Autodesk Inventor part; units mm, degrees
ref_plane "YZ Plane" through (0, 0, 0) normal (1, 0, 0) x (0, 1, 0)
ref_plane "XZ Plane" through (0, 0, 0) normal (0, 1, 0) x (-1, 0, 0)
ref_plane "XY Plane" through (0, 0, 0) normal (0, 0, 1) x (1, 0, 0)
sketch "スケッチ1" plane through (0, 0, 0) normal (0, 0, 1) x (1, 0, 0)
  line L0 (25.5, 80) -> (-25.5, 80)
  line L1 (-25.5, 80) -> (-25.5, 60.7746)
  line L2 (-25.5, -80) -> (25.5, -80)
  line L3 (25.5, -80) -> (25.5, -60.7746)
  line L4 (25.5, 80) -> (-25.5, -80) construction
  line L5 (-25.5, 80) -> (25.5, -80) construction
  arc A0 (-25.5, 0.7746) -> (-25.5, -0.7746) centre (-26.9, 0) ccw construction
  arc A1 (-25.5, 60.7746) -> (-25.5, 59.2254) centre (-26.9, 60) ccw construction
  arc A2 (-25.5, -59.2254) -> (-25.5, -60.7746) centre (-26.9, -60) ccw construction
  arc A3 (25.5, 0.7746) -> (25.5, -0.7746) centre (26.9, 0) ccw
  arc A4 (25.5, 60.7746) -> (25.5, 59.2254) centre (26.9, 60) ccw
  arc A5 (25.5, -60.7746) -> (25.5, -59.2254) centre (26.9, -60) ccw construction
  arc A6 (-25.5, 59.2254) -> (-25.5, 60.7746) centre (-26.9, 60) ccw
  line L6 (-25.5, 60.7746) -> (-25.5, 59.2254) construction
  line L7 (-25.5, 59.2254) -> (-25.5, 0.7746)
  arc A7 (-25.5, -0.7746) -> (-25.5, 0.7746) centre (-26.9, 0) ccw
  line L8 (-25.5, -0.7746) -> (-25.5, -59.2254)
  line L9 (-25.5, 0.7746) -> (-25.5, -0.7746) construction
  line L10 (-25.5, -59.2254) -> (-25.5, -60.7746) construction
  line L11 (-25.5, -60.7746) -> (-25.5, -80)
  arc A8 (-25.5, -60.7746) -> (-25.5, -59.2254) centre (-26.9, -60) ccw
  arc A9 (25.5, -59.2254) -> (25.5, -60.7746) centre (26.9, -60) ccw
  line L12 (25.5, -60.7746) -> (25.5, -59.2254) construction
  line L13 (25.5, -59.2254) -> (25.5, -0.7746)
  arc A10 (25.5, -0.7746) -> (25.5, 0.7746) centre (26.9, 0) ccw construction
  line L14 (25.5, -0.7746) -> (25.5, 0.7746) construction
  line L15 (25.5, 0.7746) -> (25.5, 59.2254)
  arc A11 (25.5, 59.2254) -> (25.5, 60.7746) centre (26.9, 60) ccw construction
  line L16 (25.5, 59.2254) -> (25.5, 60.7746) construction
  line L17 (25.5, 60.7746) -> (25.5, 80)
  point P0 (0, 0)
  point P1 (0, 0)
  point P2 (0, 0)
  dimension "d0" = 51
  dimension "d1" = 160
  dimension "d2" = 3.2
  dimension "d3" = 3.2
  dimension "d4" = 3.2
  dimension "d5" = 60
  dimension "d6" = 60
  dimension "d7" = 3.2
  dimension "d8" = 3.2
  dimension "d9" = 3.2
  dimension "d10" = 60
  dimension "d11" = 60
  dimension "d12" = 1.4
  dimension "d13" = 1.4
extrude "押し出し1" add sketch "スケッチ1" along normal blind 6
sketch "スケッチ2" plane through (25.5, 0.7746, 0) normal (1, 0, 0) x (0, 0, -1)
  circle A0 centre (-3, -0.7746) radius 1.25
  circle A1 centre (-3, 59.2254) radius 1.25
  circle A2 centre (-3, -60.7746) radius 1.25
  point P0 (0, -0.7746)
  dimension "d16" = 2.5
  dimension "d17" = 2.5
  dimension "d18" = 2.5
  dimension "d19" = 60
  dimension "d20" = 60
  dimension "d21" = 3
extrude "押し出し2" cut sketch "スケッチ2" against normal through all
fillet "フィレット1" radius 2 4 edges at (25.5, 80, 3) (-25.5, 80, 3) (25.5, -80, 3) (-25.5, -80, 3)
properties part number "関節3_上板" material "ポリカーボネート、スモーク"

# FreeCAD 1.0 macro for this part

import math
import FreeCAD as App
import Part
import Sketcher

V = App.Vector


def edges_at(feature, points):
    """Names of the edges that pass closest to the given points."""
    edges = feature.Shape.Edges
    near = lambda p: min(range(len(edges)), key=lambda i: edges[i].distToShape(Part.Vertex(*p))[0])
    return sorted({f"Edge{near(p) + 1}" for p in points})

doc = App.newDocument("Part")
params = doc.addObject("Spreadsheet::Sheet", "Params")
for row, (alias, value) in enumerate([
    ("sketch1_radius", "1.6 mm"),
    ("sketch1_width", "51 mm"),
    ("pad1_length", "6 mm"),
    ("sketch2_diameter", "2.5 mm"),
    ("fillet_radius", "2 mm"),
], start=1):
    params.set(f"A{row}", alias)
    params.set(f"B{row}", "=" + value)
    params.setAlias(f"B{row}", alias)

body = doc.addObject("PartDesign::Body", "Body")

sketch1 = body.newObject("Sketcher::SketchObject", "Sketch")
sketch1.AttachmentSupport = (doc.getObject("XY_Plane"), [""])
sketch1.MapMode = "FlatFace"
sketch1.addGeometry(Part.LineSegment(V(25.5, 60.8, 0), V(25.5, 80, 0)), False)
sketch1.addGeometry(Part.LineSegment(V(25.5, 80, 0), V(-25.5, 80, 0)), False)
sketch1.addGeometry(Part.LineSegment(V(-25.5, 80, 0), V(-25.5, 60.8, 0)), False)
sketch1.addGeometry(Part.ArcOfCircle(Part.Circle(V(-26.9, 60, 0), V(0, 0, 1), 1.6), math.radians(-29), math.radians(29)), False)
sketch1.addGeometry(Part.LineSegment(V(-25.5, 59.2, 0), V(-25.5, 0.8, 0)), False)
sketch1.addGeometry(Part.ArcOfCircle(Part.Circle(V(-26.9, 0, 0), V(0, 0, 1), 1.6), math.radians(-29), math.radians(29)), False)
sketch1.addGeometry(Part.LineSegment(V(-25.5, -0.8, 0), V(-25.5, -59.2, 0)), False)
sketch1.addGeometry(Part.ArcOfCircle(Part.Circle(V(-26.9, -60, 0), V(0, 0, 1), 1.6), math.radians(-29), math.radians(29)), False)
sketch1.addGeometry(Part.LineSegment(V(-25.5, -60.8, 0), V(-25.5, -80, 0)), False)
sketch1.addGeometry(Part.LineSegment(V(-25.5, -80, 0), V(25.5, -80, 0)), False)
sketch1.addGeometry(Part.LineSegment(V(25.5, -80, 0), V(25.5, -60.8, 0)), False)
sketch1.addGeometry(Part.ArcOfCircle(Part.Circle(V(26.9, -60, 0), V(0, 0, 1), 1.6), math.radians(151), math.radians(209)), False)
sketch1.addGeometry(Part.LineSegment(V(25.5, -59.2, 0), V(25.5, -0.8, 0)), False)
sketch1.addGeometry(Part.ArcOfCircle(Part.Circle(V(26.9, 0, 0), V(0, 0, 1), 1.6), math.radians(151), math.radians(209)), False)
sketch1.addGeometry(Part.LineSegment(V(25.5, 0.8, 0), V(25.5, 59.2, 0)), False)
sketch1.addGeometry(Part.ArcOfCircle(Part.Circle(V(26.9, 60, 0), V(0, 0, 1), 1.6), math.radians(151), math.radians(209)), False)
sketch1.addConstraint(Sketcher.Constraint("Coincident", 0, 2, 1, 1))
sketch1.addConstraint(Sketcher.Constraint("Coincident", 1, 2, 2, 1))
sketch1.addConstraint(Sketcher.Constraint("Coincident", 2, 2, 3, 2))
sketch1.addConstraint(Sketcher.Constraint("Coincident", 3, 1, 4, 1))
sketch1.addConstraint(Sketcher.Constraint("Coincident", 4, 2, 5, 2))
sketch1.addConstraint(Sketcher.Constraint("Coincident", 5, 1, 6, 1))
sketch1.addConstraint(Sketcher.Constraint("Coincident", 6, 2, 7, 2))
sketch1.addConstraint(Sketcher.Constraint("Coincident", 7, 1, 8, 1))
sketch1.addConstraint(Sketcher.Constraint("Coincident", 8, 2, 9, 1))
sketch1.addConstraint(Sketcher.Constraint("Coincident", 9, 2, 10, 1))
sketch1.addConstraint(Sketcher.Constraint("Coincident", 10, 2, 11, 2))
sketch1.addConstraint(Sketcher.Constraint("Coincident", 11, 1, 12, 1))
sketch1.addConstraint(Sketcher.Constraint("Coincident", 12, 2, 13, 2))
sketch1.addConstraint(Sketcher.Constraint("Coincident", 13, 1, 14, 1))
sketch1.addConstraint(Sketcher.Constraint("Coincident", 14, 2, 15, 2))
sketch1.addConstraint(Sketcher.Constraint("Coincident", 15, 1, 0, 1))
sketch1.addConstraint(Sketcher.Constraint("Vertical", 0))
sketch1.addConstraint(Sketcher.Constraint("Horizontal", 1))
sketch1.addConstraint(Sketcher.Constraint("Vertical", 2))
sketch1.addConstraint(Sketcher.Constraint("Vertical", 4))
sketch1.addConstraint(Sketcher.Constraint("Vertical", 6))
sketch1.addConstraint(Sketcher.Constraint("Vertical", 8))
sketch1.addConstraint(Sketcher.Constraint("Horizontal", 9))
sketch1.addConstraint(Sketcher.Constraint("Vertical", 10))
sketch1.addConstraint(Sketcher.Constraint("Vertical", 12))
sketch1.addConstraint(Sketcher.Constraint("Vertical", 14))
sketch1.addConstraint(Sketcher.Constraint("Equal", 3, 5))
sketch1.addConstraint(Sketcher.Constraint("Equal", 5, 7))
sketch1.addConstraint(Sketcher.Constraint("Equal", 7, 11))
sketch1.addConstraint(Sketcher.Constraint("Equal", 11, 13))
sketch1.addConstraint(Sketcher.Constraint("Equal", 13, 15))
sketch1.addConstraint(Sketcher.Constraint("Symmetric", 3, 3, 11, 3, -1, 1))
sketch1.addConstraint(Sketcher.Constraint("Symmetric", 5, 3, 13, 3, -1, 1))
sketch1.addConstraint(Sketcher.Constraint("Symmetric", 7, 3, 15, 3, -1, 1))
sketch1.addConstraint(Sketcher.Constraint("Symmetric", 0, 2, 8, 2, -1, 1))
sketch1.addConstraint(Sketcher.Constraint("Symmetric", 7, 3, 11, 3, -2))
sketch1.addConstraint(Sketcher.Constraint("Symmetric", 5, 1, 12, 2, -2))
sketch1.addConstraint(Sketcher.Constraint("Horizontal", 7, 1, 10, 2))
sketch1.addConstraint(Sketcher.Constraint("Horizontal", 4, 2, 13, 1))
sketch1.addConstraint(Sketcher.Constraint("Horizontal", 2, 2, 15, 1))
sketch1.addConstraint(Sketcher.Constraint("Vertical", 3, 3, 5, 3))
sketch1.addConstraint(Sketcher.Constraint("Vertical", 2, 2, 3, 1))
sketch1.addConstraint(Sketcher.Constraint("Vertical", 4, 2, 5, 1))
sketch1.addConstraint(Sketcher.Constraint("Radius", 3, 1.6))
sketch1.addConstraint(Sketcher.Constraint("DistanceX", 1, 2, 1, 1, 51.0))
sketch1.addConstraint(Sketcher.Constraint("DistanceY", -1, 1, 3, 3, 60.0))
sketch1.addConstraint(Sketcher.Constraint("DistanceX", 0, 2, 15, 3, 1.4))
sketch1.addConstraint(Sketcher.Constraint("DistanceY", -1, 1, 0, 2, 80.0))
sketch1.setExpression("Constraints[43]", "Params.sketch1_radius")
sketch1.setExpression("Constraints[44]", "Params.sketch1_width")
pad1 = body.newObject("PartDesign::Pad", "Pad")
pad1.Profile = sketch1
pad1.setExpression("Length", "Params.pad1_length")

sketch2 = body.newObject("Sketcher::SketchObject", "Sketch001")
sketch2.AttachmentSupport = (doc.getObject("YZ_Plane"), [""])
sketch2.MapMode = "FlatFace"
sketch2.AttachmentOffset = App.Placement(V(0, 0, 25.5), App.Rotation())
sketch2.addGeometry(Part.Circle(V(0, 3, 0), V(0, 0, 1), 1.2), False)
sketch2.addGeometry(Part.Circle(V(60, 3, 0), V(0, 0, 1), 1.2), False)
sketch2.addGeometry(Part.Circle(V(-60, 3, 0), V(0, 0, 1), 1.2), False)
sketch2.addConstraint(Sketcher.Constraint("Equal", 0, 1))
sketch2.addConstraint(Sketcher.Constraint("Equal", 1, 2))
sketch2.addConstraint(Sketcher.Constraint("Symmetric", 1, 3, 2, 3, -2))
sketch2.addConstraint(Sketcher.Constraint("PointOnObject", 0, 3, -2))
sketch2.addConstraint(Sketcher.Constraint("Horizontal", 0, 3, 1, 3))
sketch2.addConstraint(Sketcher.Constraint("Diameter", 0, 2.5))
sketch2.addConstraint(Sketcher.Constraint("DistanceY", -1, 1, 0, 3, 3.0))
sketch2.addConstraint(Sketcher.Constraint("DistanceX", -1, 1, 1, 3, 60.0))
sketch2.setExpression("Constraints[5]", "Params.sketch2_diameter")
pocket1 = body.newObject("PartDesign::Pocket", "Pocket")
pocket1.Profile = sketch2
pocket1.Type = "ThroughAll"
doc.recompute()

fillet = body.newObject("PartDesign::Fillet", "Fillet")
fillet.Base = (pocket1, edges_at(pocket1, [
    (25.5, 80, 3),
    (-25.5, 80, 3),
    (25.5, -80, 3),
    (-25.5, -80, 3),
]))
fillet.setExpression("Radius", "Params.fillet_radius")

doc.recompute()
